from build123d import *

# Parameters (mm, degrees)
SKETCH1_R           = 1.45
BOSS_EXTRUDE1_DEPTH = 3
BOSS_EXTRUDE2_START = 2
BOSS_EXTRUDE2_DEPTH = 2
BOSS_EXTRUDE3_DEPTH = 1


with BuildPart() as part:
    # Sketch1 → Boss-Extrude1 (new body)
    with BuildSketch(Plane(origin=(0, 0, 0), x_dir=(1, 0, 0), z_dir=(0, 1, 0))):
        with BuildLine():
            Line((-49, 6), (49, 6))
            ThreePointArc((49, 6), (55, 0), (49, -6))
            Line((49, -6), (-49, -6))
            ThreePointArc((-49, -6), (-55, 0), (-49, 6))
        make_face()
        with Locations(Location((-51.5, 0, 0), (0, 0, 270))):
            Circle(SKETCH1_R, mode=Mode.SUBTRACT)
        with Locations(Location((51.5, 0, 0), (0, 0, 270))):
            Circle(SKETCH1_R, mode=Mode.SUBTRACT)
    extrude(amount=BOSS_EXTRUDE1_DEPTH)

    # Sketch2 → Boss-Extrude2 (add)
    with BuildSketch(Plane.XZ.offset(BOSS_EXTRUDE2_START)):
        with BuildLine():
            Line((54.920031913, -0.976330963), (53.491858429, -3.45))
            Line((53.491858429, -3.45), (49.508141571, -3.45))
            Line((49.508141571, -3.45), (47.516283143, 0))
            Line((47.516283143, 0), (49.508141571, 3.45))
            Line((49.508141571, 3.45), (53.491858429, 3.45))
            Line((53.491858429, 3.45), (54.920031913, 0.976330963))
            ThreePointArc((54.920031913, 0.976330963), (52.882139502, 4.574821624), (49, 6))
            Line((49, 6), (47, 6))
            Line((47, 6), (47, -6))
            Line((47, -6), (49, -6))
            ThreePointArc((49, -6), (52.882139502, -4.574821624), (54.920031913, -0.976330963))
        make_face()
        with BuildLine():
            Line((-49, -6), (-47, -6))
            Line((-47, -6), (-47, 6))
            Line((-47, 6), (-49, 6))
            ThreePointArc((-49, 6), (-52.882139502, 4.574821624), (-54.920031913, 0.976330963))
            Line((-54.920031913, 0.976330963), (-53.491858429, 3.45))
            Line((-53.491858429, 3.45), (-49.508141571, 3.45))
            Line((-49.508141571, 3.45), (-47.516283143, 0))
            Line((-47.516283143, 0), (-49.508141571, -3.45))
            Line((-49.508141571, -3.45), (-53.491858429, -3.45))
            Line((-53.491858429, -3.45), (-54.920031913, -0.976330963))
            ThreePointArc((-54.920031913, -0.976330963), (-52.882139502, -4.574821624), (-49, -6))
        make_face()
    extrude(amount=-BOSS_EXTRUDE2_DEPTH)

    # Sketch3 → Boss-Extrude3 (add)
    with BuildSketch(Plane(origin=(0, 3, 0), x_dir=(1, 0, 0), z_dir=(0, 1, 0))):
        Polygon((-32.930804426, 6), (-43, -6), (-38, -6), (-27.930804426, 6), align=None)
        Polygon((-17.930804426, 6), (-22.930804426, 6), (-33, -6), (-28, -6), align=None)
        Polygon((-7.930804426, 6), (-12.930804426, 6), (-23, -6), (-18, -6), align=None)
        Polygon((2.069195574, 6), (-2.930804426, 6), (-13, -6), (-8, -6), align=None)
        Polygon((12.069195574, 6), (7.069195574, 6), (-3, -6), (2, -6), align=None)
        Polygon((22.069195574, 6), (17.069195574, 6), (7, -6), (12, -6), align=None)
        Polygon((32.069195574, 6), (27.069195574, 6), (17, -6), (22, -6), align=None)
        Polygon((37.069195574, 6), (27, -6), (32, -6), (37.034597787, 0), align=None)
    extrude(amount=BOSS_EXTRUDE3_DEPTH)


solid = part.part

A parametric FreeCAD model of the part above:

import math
import FreeCAD as App
import Part
import Sketcher
from FreeCAD import Vector
Q = App.Units.Quantity

doc = App.newDocument("Part")
body = doc.addObject("PartDesign::Body", "Body")

# Sketch on XZ plane
sketch1 = body.newObject("Sketcher::SketchObject", "Sketch")
sketch1.AttachmentSupport = (doc.getObject("XZ_Plane"), [""])
sketch1.MapMode = "FlatFace"
sketch1.addGeometry([
    Part.LineSegment(Vector(49, -6, 0), Vector(-49, -6, 0)),  # 0
    Part.ArcOfCircle(Part.Circle(Vector(-49, 0, 0), Vector(0, 0, 1), 6), math.radians(90), math.radians(270)),  # 1
    Part.LineSegment(Vector(-49, 6, 0), Vector(49, 6, 0)),  # 2
    Part.ArcOfCircle(Part.Circle(Vector(49, 0, 0), Vector(0, 0, 1), 6), math.radians(-90), math.radians(90)),  # 3
    Part.Circle(Vector(51.5, 0, 0), Vector(0, 0, 1), 1.4),  # 4
    Part.Circle(Vector(-51.5, 0, 0), Vector(0, 0, 1), 1.4),  # 5
], False)
sketch1.addConstraint([
    Sketcher.Constraint("Tangent", 0, 2, 1, 2),
    Sketcher.Constraint("Tangent", 1, 1, 2, 1),
    Sketcher.Constraint("Tangent", 2, 2, 3, 2),
    Sketcher.Constraint("Tangent", 3, 1, 0, 1),
    Sketcher.Constraint("Horizontal", 0),
    Sketcher.Constraint("Horizontal", 2),
    Sketcher.Constraint("Equal", 4, 5),
    Sketcher.Constraint("Symmetric", 1, 3, 3, 3, -1, 1),
    Sketcher.Constraint("Symmetric", 4, 3, 5, 3, -1, 1),
    Sketcher.Constraint("PointOnObject", 4, 3, -1),
    Sketcher.Constraint("Radius", 1, 6.0),
    Sketcher.Constraint("Diameter", 4, 2.9),
    Sketcher.Constraint("DistanceX", 0, 2, 0, 1, 98.0),
    Sketcher.Constraint("DistanceX", 5, 3, 4, 3, 103.0),
])
pad1 = body.newObject("PartDesign::Pad", "Pad")
pad1.Profile = sketch1
pad1.Length = 3
pad1.Reversed = True

# Sketch on XZ plane
sketch2 = body.newObject("Sketcher::SketchObject", "Sketch001")
sketch2.AttachmentSupport = (doc.getObject("XZ_Plane"), [""])
sketch2.MapMode = "FlatFace"
sketch2.AttachmentOffset = App.Placement(Vector(0, 0, 2), App.Rotation())
sketch2.addGeometry([
    Part.LineSegment(Vector(54.9, -1, 0), Vector(53.5, -3.5, 0)),  # 0
    Part.LineSegment(Vector(53.5, -3.5, 0), Vector(49.5, -3.5, 0)),  # 1
    Part.LineSegment(Vector(49.5, -3.5, 0), Vector(47.5, 0, 0)),  # 2
    Part.LineSegment(Vector(47.5, 0, 0), Vector(49.5, 3.5, 0)),  # 3
    Part.LineSegment(Vector(49.5, 3.5, 0), Vector(53.5, 3.5, 0)),  # 4
    Part.LineSegment(Vector(53.5, 3.5, 0), Vector(54.9, 1, 0)),  # 5
    Part.ArcOfCircle(Part.Circle(Vector(49, 0, 0), Vector(0, 0, 1), 6), math.radians(9), math.radians(90)),  # 6
    Part.LineSegment(Vector(49, 6, 0), Vector(47, 6, 0)),  # 7
    Part.LineSegment(Vector(47, 6, 0), Vector(47, -6, 0)),  # 8
    Part.LineSegment(Vector(47, -6, 0), Vector(49, -6, 0)),  # 9
    Part.ArcOfCircle(Part.Circle(Vector(49, 0, 0), Vector(0, 0, 1), 6), math.radians(-90), math.radians(-9)),  # 10
    Part.LineSegment(Vector(-49, -6, 0), Vector(-47, -6, 0)),  # 11
    Part.LineSegment(Vector(-47, -6, 0), Vector(-47, 6, 0)),  # 12
    Part.LineSegment(Vector(-47, 6, 0), Vector(-49, 6, 0)),  # 13
    Part.ArcOfCircle(Part.Circle(Vector(-49, 0, 0), Vector(0, 0, 1), 6), math.radians(90), math.radians(171)),  # 14
    Part.LineSegment(Vector(-54.9, 1, 0), Vector(-53.5, 3.5, 0)),  # 15
    Part.LineSegment(Vector(-53.5, 3.5, 0), Vector(-49.5, 3.5, 0)),  # 16
    Part.LineSegment(Vector(-49.5, 3.5, 0), Vector(-47.5, 0, 0)),  # 17
    Part.LineSegment(Vector(-47.5, 0, 0), Vector(-49.5, -3.5, 0)),  # 18
    Part.LineSegment(Vector(-49.5, -3.5, 0), Vector(-53.5, -3.5, 0)),  # 19
    Part.LineSegment(Vector(-53.5, -3.5, 0), Vector(-54.9, -1, 0)),  # 20
    Part.ArcOfCircle(Part.Circle(Vector(-49, 0, 0), Vector(0, 0, 1), 6), math.radians(-171), math.radians(-90)),  # 21
], False)
sketch2.addConstraint([
    Sketcher.Constraint("Coincident", 0, 2, 1, 1),
    Sketcher.Constraint("Coincident", 1, 2, 2, 1),
    Sketcher.Constraint("Coincident", 2, 2, 3, 1),
    Sketcher.Constraint("Coincident", 3, 2, 4, 1),
    Sketcher.Constraint("Coincident", 4, 2, 5, 1),
    Sketcher.Constraint("Coincident", 5, 2, 6, 1),
    Sketcher.Constraint("Tangent", 6, 2, 7, 1),
    Sketcher.Constraint("Coincident", 7, 2, 8, 1),
    Sketcher.Constraint("Coincident", 8, 2, 9, 1),
    Sketcher.Constraint("Tangent", 9, 2, 10, 1),
    Sketcher.Constraint("Coincident", 10, 2, 0, 1),
    Sketcher.Constraint("Coincident", 11, 2, 12, 1),
    Sketcher.Constraint("Coincident", 12, 2, 13, 1),
    Sketcher.Constraint("Tangent", 13, 2, 14, 1),
    Sketcher.Constraint("Coincident", 14, 2, 15, 1),
    Sketcher.Constraint("Coincident", 15, 2, 16, 1),
    Sketcher.Constraint("Coincident", 16, 2, 17, 1),
    Sketcher.Constraint("Coincident", 17, 2, 18, 1),
    Sketcher.Constraint("Coincident", 18, 2, 19, 1),
    Sketcher.Constraint("Coincident", 19, 2, 20, 1),
    Sketcher.Constraint("Coincident", 20, 2, 21, 1),
    Sketcher.Constraint("Tangent", 21, 2, 11, 1),
    Sketcher.Constraint("Horizontal", 1),
    Sketcher.Constraint("Horizontal", 4),
    Sketcher.Constraint("Horizontal", 7),
    Sketcher.Constraint("Vertical", 8),
    Sketcher.Constraint("Horizontal", 9),
    Sketcher.Constraint("Horizontal", 11),
    Sketcher.Constraint("Vertical", 12),
    Sketcher.Constraint("Horizontal", 13),
    Sketcher.Constraint("Horizontal", 16),
    Sketcher.Constraint("Horizontal", 19),
    Sketcher.Constraint("Coincident", 10, 3, 6, 3),
    Sketcher.Constraint("Coincident", 21, 3, 14, 3),
    Sketcher.Constraint("Equal", 6, 10),
    Sketcher.Constraint("Equal", 10, 14),
    Sketcher.Constraint("Equal", 14, 21),
    Sketcher.Constraint("Symmetric", 6, 3, 14, 3, -1, 1),
    Sketcher.Constraint("Symmetric", 0, 2, 15, 2, -1, 1),
    Sketcher.Constraint("Symmetric", 2, 2, 17, 2, -1, 1),
    Sketcher.Constraint("Symmetric", 3, 2, 18, 2, -1, 1),
    Sketcher.Constraint("Symmetric", 8, 2, 11, 2, -2),
    Sketcher.Constraint("Symmetric", 4, 2, 15, 2, -2),
    Sketcher.Constraint("PointOnObject", 2, 2, -1),
    Sketcher.Constraint("Parallel", 0, 3),
    Sketcher.Constraint("Parallel", 2, 5),
    Sketcher.Constraint("Parallel", 3, 15),
    Sketcher.Constraint("Parallel", 5, 17),
    Sketcher.Constraint("Parallel", 17, 20),
    Sketcher.Constraint("Horizontal", 5, 2, 14, 2),
    Sketcher.Constraint("Horizontal", 10, 2, 20, 2),
    Sketcher.Constraint("Radius", 6, 6.0),
    Sketcher.Constraint("DistanceX", 7, 2, 7, 1, 2.0),
    Sketcher.Constraint("Angle", 0, Q("-120 deg")),
    Sketcher.Constraint("DistanceX", -1, 1, 6, 3, 49.0),
    Sketcher.Constraint("DistanceY", 1, 2, 3, 2, 6.9),
    Sketcher.Constraint("DistanceX", 1, 2, 1, 1, 3.983717),
    Sketcher.Constraint("DistanceX", -1, 1, 0, 2, 53.491858),
])
pad2 = body.newObject("PartDesign::Pad", "Pad001")
pad2.Profile = sketch2
pad2.Length = 2
pad2.Reversed = True

# Sketch on XZ plane
sketch3 = body.newObject("Sketcher::SketchObject", "Sketch002")
sketch3.AttachmentSupport = (doc.getObject("XZ_Plane"), [""])
sketch3.MapMode = "FlatFace"
sketch3.AttachmentOffset = App.Placement(Vector(0, 0, -3), App.Rotation())
sketch3.addGeometry([
    Part.LineSegment(Vector(-33, -6, 0), Vector(-43, 6, 0)),  # 0
    Part.LineSegment(Vector(-43, 6, 0), Vector(-38, 6, 0)),  # 1
    Part.LineSegment(Vector(-38, 6, 0), Vector(-28, -6, 0)),  # 2
    Part.LineSegment(Vector(-28, -6, 0), Vector(-33, -6, 0)),  # 3
    Part.LineSegment(Vector(-18, -6, 0), Vector(-23, -6, 0)),  # 4
    Part.LineSegment(Vector(-23, -6, 0), Vector(-33, 6, 0)),  # 5
    Part.LineSegment(Vector(-33, 6, 0), Vector(-28, 6, 0)),  # 6
    Part.LineSegment(Vector(-28, 6, 0), Vector(-18, -6, 0)),  # 7
    Part.LineSegment(Vector(-8, -6, 0), Vector(-13, -6, 0)),  # 8
    Part.LineSegment(Vector(-13, -6, 0), Vector(-23, 6, 0)),  # 9
    Part.LineSegment(Vector(-23, 6, 0), Vector(-18, 6, 0)),  # 10
    Part.LineSegment(Vector(-18, 6, 0), Vector(-8, -6, 0)),  # 11
    Part.LineSegment(Vector(2, -6, 0), Vector(-3, -6, 0)),  # 12
    Part.LineSegment(Vector(-3, -6, 0), Vector(-13, 6, 0)),  # 13
    Part.LineSegment(Vector(-13, 6, 0), Vector(-8, 6, 0)),  # 14
    Part.LineSegment(Vector(-8, 6, 0), Vector(2, -6, 0)),  # 15
    Part.LineSegment(Vector(12, -6, 0), Vector(7, -6, 0)),  # 16
    Part.LineSegment(Vector(7, -6, 0), Vector(-3, 6, 0)),  # 17
    Part.LineSegment(Vector(-3, 6, 0), Vector(2, 6, 0)),  # 18
    Part.LineSegment(Vector(2, 6, 0), Vector(12, -6, 0)),  # 19
    Part.LineSegment(Vector(22, -6, 0), Vector(17, -6, 0)),  # 20
    Part.LineSegment(Vector(17, -6, 0), Vector(7, 6, 0)),  # 21
    Part.LineSegment(Vector(7, 6, 0), Vector(12, 6, 0)),  # 22
    Part.LineSegment(Vector(12, 6, 0), Vector(22, -6, 0)),  # 23
    Part.LineSegment(Vector(32, -6, 0), Vector(27, -6, 0)),  # 24
    Part.LineSegment(Vector(27, -6, 0), Vector(17, 6, 0)),  # 25
    Part.LineSegment(Vector(17, 6, 0), Vector(22, 6, 0)),  # 26
    Part.LineSegment(Vector(22, 6, 0), Vector(32, -6, 0)),  # 27
    Part.LineSegment(Vector(37, -6, 0), Vector(27, 6, 0)),  # 28
    Part.LineSegment(Vector(27, 6, 0), Vector(32, 6, 0)),  # 29
    Part.LineSegment(Vector(32, 6, 0), Vector(37, 0, 0)),  # 30
    Part.LineSegment(Vector(37, 0, 0), Vector(37, -6, 0)),  # 31
], False)
sketch3.addConstraint([
    Sketcher.Constraint("Coincident", 0, 2, 1, 1),
    Sketcher.Constraint("Coincident", 1, 2, 2, 1),
    Sketcher.Constraint("Coincident", 2, 2, 3, 1),
    Sketcher.Constraint("Coincident", 3, 2, 0, 1),
    Sketcher.Constraint("Coincident", 4, 2, 5, 1),
    Sketcher.Constraint("Coincident", 5, 2, 6, 1),
    Sketcher.Constraint("Coincident", 6, 2, 7, 1),
    Sketcher.Constraint("Coincident", 7, 2, 4, 1),
    Sketcher.Constraint("Coincident", 8, 2, 9, 1),
    Sketcher.Constraint("Coincident", 9, 2, 10, 1),
    Sketcher.Constraint("Coincident", 10, 2, 11, 1),
    Sketcher.Constraint("Coincident", 11, 2, 8, 1),
    Sketcher.Constraint("Coincident", 12, 2, 13, 1),
    Sketcher.Constraint("Coincident", 13, 2, 14, 1),
    Sketcher.Constraint("Coincident", 14, 2, 15, 1),
    Sketcher.Constraint("Coincident", 15, 2, 12, 1),
    Sketcher.Constraint("Coincident", 16, 2, 17, 1),
    Sketcher.Constraint("Coincident", 17, 2, 18, 1),
    Sketcher.Constraint("Coincident", 18, 2, 19, 1),
    Sketcher.Constraint("Coincident", 19, 2, 16, 1),
    Sketcher.Constraint("Coincident", 20, 2, 21, 1),
    Sketcher.Constraint("Coincident", 21, 2, 22, 1),
    Sketcher.Constraint("Coincident", 22, 2, 23, 1),
    Sketcher.Constraint("Coincident", 23, 2, 20, 1),
    Sketcher.Constraint("Coincident", 24, 2, 25, 1),
    Sketcher.Constraint("Coincident", 25, 2, 26, 1),
    Sketcher.Constraint("Coincident", 26, 2, 27, 1),
    Sketcher.Constraint("Coincident", 27, 2, 24, 1),
    Sketcher.Constraint("Coincident", 28, 2, 29, 1),
    Sketcher.Constraint("Coincident", 29, 2, 30, 1),
    Sketcher.Constraint("Coincident", 30, 2, 31, 1),
    Sketcher.Constraint("Coincident", 31, 2, 28, 1),
    Sketcher.Constraint("Horizontal", 1),
    Sketcher.Constraint("Horizontal", 3),
    Sketcher.Constraint("Horizontal", 4),
    Sketcher.Constraint("Horizontal", 6),
    Sketcher.Constraint("Horizontal", 8),
    Sketcher.Constraint("Horizontal", 10),
    Sketcher.Constraint("Horizontal", 12),
    Sketcher.Constraint("Horizontal", 14),
    Sketcher.Constraint("Horizontal", 16),
    Sketcher.Constraint("Horizontal", 18),
    Sketcher.Constraint("Horizontal", 20),
    Sketcher.Constraint("Horizontal", 22),
    Sketcher.Constraint("Horizontal", 24),
    Sketcher.Constraint("Horizontal", 26),
    Sketcher.Constraint("Horizontal", 29),
    Sketcher.Constraint("PointOnObject", 30, 2, -1),
    Sketcher.Constraint("Parallel", 0, 2),
    Sketcher.Constraint("Parallel", 2, 5),
    Sketcher.Constraint("Parallel", 5, 7),
    Sketcher.Constraint("Parallel", 7, 9),
    Sketcher.Constraint("Parallel", 9, 11),
    Sketcher.Constraint("Parallel", 11, 13),
    Sketcher.Constraint("Parallel", 13, 15),
    Sketcher.Constraint("Parallel", 15, 17),
    Sketcher.Constraint("Parallel", 17, 19),
    Sketcher.Constraint("Parallel", 19, 21),
    Sketcher.Constraint("Parallel", 21, 23),
    Sketcher.Constraint("Parallel", 23, 25),
    Sketcher.Constraint("Parallel", 25, 27),
    Sketcher.Constraint("Parallel", 27, 28),
    Sketcher.Constraint("Parallel", 28, 30),
    Sketcher.Constraint("Horizontal", 3, 2, 4, 2),
    Sketcher.Constraint("Horizontal", 1, 2, 5, 2),
    Sketcher.Constraint("Horizontal", 7, 2, 8, 2),
    Sketcher.Constraint("Horizontal", 6, 2, 9, 2),
    Sketcher.Constraint("Horizontal", 11, 2, 12, 2),
    Sketcher.Constraint("Horizontal", 10, 2, 13, 2),
    Sketcher.Constraint("Horizontal", 15, 2, 16, 2),
    Sketcher.Constraint("Horizontal", 14, 2, 17, 2),
    Sketcher.Constraint("Horizontal", 19, 2, 20, 2),
    Sketcher.Constraint("Horizontal", 18, 2, 21, 2),
    Sketcher.Constraint("Horizontal", 23, 2, 24, 2),
    Sketcher.Constraint("Horizontal", 22, 2, 25, 2),
    Sketcher.Constraint("Horizontal", 26, 2, 28, 2),
    Sketcher.Constraint("Horizontal", 27, 2, 31, 2),
    Sketcher.Constraint("Equal", 3, 4),
    Sketcher.Constraint("Equal", 6, 8),
    Sketcher.Constraint("Equal", 10, 12),
    Sketcher.Constraint("Equal", 14, 16),
    Sketcher.Constraint("Equal", 18, 20),
    Sketcher.Constraint("Equal", 22, 24),
    Sketcher.Constraint("Equal", 26, 29),
    Sketcher.Constraint("DistanceX", 1, 1, 1, 2, 5.0),
    Sketcher.Constraint("Angle", 0, Q("130 deg")),
    Sketcher.Constraint("DistanceX", 0, 2, -1, 1, 43.0),
    Sketcher.Constraint("DistanceY", -1, 1, 0, 2, 6.0),
    Sketcher.Constraint("DistanceY", 2, 2, -1, 1, 6.0),
    Sketcher.Constraint("DistanceX", 5, 2, -1, 1, 33.0),
    Sketcher.Constraint("DistanceX", 9, 2, -1, 1, 23.0),
    Sketcher.Constraint("DistanceX", 13, 2, -1, 1, 13.0),
    Sketcher.Constraint("DistanceX", 17, 2, -1, 1, 3.0),
    Sketcher.Constraint("DistanceX", -1, 1, 21, 2, 7.0),
    Sketcher.Constraint("DistanceX", -1, 1, 25, 2, 17.0),
    Sketcher.Constraint("DistanceX", -1, 1, 28, 2, 27.0),
])
pad3 = body.newObject("PartDesign::Pad", "Pad002")
pad3.Profile = sketch3
pad3.Length = 1
pad3.Reversed = True

doc.recompute()
